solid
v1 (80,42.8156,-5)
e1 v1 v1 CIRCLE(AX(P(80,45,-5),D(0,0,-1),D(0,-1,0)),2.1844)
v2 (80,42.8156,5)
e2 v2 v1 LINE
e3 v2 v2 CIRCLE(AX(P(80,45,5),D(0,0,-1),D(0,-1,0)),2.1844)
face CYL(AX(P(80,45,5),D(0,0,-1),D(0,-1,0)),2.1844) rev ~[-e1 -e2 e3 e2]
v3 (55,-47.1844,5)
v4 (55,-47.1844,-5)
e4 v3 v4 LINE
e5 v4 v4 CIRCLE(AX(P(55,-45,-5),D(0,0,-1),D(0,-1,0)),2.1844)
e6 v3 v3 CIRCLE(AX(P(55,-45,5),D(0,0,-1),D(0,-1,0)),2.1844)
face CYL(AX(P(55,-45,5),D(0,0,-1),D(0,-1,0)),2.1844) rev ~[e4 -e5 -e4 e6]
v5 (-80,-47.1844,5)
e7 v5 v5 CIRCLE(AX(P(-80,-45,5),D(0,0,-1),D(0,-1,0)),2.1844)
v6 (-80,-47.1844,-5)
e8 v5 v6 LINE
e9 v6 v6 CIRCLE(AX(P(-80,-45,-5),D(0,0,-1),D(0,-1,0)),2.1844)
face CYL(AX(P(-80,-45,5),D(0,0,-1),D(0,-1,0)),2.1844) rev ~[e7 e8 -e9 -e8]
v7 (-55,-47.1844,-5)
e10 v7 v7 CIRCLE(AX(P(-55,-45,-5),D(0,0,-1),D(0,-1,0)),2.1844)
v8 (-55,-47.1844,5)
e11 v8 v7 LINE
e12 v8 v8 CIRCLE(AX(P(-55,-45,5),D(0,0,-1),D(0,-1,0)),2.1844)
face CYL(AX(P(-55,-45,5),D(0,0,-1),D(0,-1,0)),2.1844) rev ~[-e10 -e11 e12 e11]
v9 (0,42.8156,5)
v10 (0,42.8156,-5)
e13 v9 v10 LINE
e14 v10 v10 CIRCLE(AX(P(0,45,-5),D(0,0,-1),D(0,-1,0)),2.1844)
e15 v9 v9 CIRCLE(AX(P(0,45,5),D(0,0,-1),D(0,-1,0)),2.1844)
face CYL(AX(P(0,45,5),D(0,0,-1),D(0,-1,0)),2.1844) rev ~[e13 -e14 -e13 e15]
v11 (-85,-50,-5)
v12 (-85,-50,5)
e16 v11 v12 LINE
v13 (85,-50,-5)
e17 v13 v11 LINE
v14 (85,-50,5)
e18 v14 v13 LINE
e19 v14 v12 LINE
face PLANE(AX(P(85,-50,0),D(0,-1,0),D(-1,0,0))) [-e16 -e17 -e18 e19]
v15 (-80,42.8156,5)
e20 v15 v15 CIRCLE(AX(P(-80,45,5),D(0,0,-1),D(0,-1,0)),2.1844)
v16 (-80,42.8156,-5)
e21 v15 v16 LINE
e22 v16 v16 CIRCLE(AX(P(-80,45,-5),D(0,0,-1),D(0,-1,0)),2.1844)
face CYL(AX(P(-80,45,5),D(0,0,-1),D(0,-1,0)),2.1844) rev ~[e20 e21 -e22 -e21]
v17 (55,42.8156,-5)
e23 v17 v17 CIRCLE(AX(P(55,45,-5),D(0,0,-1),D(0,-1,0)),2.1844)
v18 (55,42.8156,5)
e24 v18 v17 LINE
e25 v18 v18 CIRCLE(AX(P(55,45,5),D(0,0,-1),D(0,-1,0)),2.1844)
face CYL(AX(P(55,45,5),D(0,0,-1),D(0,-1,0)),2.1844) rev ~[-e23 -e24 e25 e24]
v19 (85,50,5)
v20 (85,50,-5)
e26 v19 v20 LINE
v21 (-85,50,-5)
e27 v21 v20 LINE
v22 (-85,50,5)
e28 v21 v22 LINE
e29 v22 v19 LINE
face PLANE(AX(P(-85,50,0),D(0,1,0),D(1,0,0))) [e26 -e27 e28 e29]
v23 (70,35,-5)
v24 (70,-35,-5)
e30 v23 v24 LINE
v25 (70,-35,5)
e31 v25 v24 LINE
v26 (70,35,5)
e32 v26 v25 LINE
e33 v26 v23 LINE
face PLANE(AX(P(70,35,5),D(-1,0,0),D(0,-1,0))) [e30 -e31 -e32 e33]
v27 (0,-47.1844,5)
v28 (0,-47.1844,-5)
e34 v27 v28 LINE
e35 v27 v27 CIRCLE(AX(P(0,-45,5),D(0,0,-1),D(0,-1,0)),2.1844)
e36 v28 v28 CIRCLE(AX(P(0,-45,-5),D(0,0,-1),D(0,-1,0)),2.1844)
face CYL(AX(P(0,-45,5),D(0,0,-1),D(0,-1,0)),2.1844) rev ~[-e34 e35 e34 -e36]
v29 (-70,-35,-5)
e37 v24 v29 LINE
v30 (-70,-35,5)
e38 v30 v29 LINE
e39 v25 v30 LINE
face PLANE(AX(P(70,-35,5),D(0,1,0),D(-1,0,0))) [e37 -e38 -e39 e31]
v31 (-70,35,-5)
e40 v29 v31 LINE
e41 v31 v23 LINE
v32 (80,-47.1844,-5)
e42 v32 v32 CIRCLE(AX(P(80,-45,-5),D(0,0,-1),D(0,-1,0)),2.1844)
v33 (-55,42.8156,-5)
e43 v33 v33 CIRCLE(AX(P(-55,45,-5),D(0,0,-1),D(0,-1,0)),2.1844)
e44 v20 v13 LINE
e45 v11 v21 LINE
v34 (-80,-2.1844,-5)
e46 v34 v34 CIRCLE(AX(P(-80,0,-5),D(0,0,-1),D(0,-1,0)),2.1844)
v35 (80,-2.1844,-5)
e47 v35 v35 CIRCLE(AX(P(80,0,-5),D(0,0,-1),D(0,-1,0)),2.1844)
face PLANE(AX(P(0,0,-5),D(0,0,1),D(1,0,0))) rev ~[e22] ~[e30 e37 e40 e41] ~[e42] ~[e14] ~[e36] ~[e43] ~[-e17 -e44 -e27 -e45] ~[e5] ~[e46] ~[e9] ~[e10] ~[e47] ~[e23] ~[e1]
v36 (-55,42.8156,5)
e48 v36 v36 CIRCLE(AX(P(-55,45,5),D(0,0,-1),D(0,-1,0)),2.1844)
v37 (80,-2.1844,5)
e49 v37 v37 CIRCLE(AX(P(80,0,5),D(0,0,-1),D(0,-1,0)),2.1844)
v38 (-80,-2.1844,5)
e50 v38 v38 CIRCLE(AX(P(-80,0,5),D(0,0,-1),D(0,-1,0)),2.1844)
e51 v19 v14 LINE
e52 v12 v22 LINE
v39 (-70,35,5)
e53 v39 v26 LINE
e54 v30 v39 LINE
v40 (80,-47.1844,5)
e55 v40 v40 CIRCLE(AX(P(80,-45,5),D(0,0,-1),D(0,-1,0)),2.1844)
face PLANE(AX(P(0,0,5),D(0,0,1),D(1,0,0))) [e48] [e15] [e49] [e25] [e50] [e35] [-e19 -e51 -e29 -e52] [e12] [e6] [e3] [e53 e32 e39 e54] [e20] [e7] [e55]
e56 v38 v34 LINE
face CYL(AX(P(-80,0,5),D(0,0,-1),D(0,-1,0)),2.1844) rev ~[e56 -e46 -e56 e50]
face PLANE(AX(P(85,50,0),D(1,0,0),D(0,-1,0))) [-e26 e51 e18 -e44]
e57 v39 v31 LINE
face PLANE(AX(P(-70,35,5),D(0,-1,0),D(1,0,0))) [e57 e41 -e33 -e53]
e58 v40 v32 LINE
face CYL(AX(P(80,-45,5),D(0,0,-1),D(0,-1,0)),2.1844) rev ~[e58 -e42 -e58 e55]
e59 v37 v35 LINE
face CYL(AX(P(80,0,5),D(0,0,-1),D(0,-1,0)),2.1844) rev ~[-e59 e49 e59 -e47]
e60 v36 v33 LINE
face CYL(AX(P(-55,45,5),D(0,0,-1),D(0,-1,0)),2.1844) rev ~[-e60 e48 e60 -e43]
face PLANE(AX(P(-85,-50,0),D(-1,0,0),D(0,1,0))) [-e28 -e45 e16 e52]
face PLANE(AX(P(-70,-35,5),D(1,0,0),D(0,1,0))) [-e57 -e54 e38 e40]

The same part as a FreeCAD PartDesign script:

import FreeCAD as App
import Part
import Sketcher

V = App.Vector
Q = App.Units.Quantity

doc = App.newDocument("Part")
body = doc.addObject("PartDesign::Body", "Body")

sketch1 = body.newObject("Sketcher::SketchObject", "Sketch")
sketch1.AttachmentSupport = (doc.getObject("XY_Plane"), [""])
sketch1.MapMode = "FlatFace"
sketch1.addGeometry(Part.LineSegment(V(85, 50, 0), V(-85, 50, 0)), False)
sketch1.addGeometry(Part.LineSegment(V(-85, 50, 0), V(-85, -50, 0)), False)
sketch1.addGeometry(Part.LineSegment(V(-85, -50, 0), V(85, -50, 0)), False)
sketch1.addGeometry(Part.LineSegment(V(85, -50, 0), V(85, 50, 0)), False)
sketch1.addConstraint(Sketcher.Constraint("Coincident", 0, 2, 1, 1))
sketch1.addConstraint(Sketcher.Constraint("Coincident", 1, 2, 2, 1))
sketch1.addConstraint(Sketcher.Constraint("Coincident", 2, 2, 3, 1))
sketch1.addConstraint(Sketcher.Constraint("Coincident", 3, 2, 0, 1))
sketch1.addConstraint(Sketcher.Constraint("Horizontal", 0))
sketch1.addConstraint(Sketcher.Constraint("Vertical", 1))
sketch1.addConstraint(Sketcher.Constraint("Horizontal", 2))
sketch1.addConstraint(Sketcher.Constraint("Vertical", 3))
sketch1.addConstraint(Sketcher.Constraint("Symmetric", 0, 2, 2, 2, -1, 1))
sketch1.addConstraint(Sketcher.Constraint("DistanceX", 0, 2, 0, 1, Q("170 mm")))
sketch1.addConstraint(Sketcher.Constraint("DistanceY", 1, 2, 1, 1, Q("100 mm")))
pad1 = body.newObject("PartDesign::Pad", "Pad")
pad1.Profile = sketch1
pad1.Length = 10
pad1.Midplane = True

sketch2 = body.newObject("Sketcher::SketchObject", "Sketch001")
sketch2.AttachmentSupport = (doc.getObject("XY_Plane"), [""])
sketch2.MapMode = "FlatFace"
sketch2.AttachmentOffset = App.Placement(V(0, 0, 5), App.Rotation())
sketch2.addGeometry(Part.LineSegment(V(70, 35, 0), V(-70, 35, 0)), False)
sketch2.addGeometry(Part.LineSegment(V(-70, 35, 0), V(-70, -35, 0)), False)
sketch2.addGeometry(Part.LineSegment(V(-70, -35, 0), V(70, -35, 0)), False)
sketch2.addGeometry(Part.LineSegment(V(70, -35, 0), V(70, 35, 0)), False)
sketch2.addConstraint(Sketcher.Constraint("Coincident", 0, 2, 1, 1))
sketch2.addConstraint(Sketcher.Constraint("Coincident", 1, 2, 2, 1))
sketch2.addConstraint(Sketcher.Constraint("Coincident", 2, 2, 3, 1))
sketch2.addConstraint(Sketcher.Constraint("Coincident", 3, 2, 0, 1))
sketch2.addConstraint(Sketcher.Constraint("Horizontal", 0))
sketch2.addConstraint(Sketcher.Constraint("Vertical", 1))
sketch2.addConstraint(Sketcher.Constraint("Horizontal", 2))
sketch2.addConstraint(Sketcher.Constraint("Vertical", 3))
sketch2.addConstraint(Sketcher.Constraint("Symmetric", 0, 2, 2, 2, -1, 1))
sketch2.addConstraint(Sketcher.Constraint("DistanceX", 0, 2, 0, 1, Q("140 mm")))
sketch2.addConstraint(Sketcher.Constraint("DistanceY", 1, 2, 1, 1, Q("70 mm")))
pocket1 = body.newObject("PartDesign::Pocket", "Pocket")
pocket1.Profile = sketch2
pocket1.Length = 10

sketch3 = body.newObject("Sketcher::SketchObject", "Sketch002")
sketch3.AttachmentSupport = (doc.getObject("XY_Plane"), [""])
sketch3.MapMode = "FlatFace"
sketch3.AttachmentOffset = App.Placement(V(0, 0, 5), App.Rotation())
sketch3.addGeometry(Part.Circle(V(-80, 0, 0), V(0, 0, 1), 2.1844), False)
sketch3.addGeometry(Part.Circle(V(-80, -45, 0), V(0, 0, 1), 2.1844), False)
sketch3.addGeometry(Part.Circle(V(0, -45, 0), V(0, 0, 1), 2.1844), False)
sketch3.addGeometry(Part.Circle(V(-55, -45, 0), V(0, 0, 1), 2.1844), False)
sketch3.addGeometry(Part.Circle(V(55, -45, 0), V(0, 0, 1), 2.1844), False)
sketch3.addGeometry(Part.Circle(V(80, -45, 0), V(0, 0, 1), 2.1844), False)
sketch3.addGeometry(Part.Circle(V(80, 0, 0), V(0, 0, 1), 2.1844), False)
sketch3.addGeometry(Part.Circle(V(80, 45, 0), V(0, 0, 1), 2.1844), False)
sketch3.addGeometry(Part.Circle(V(55, 45, 0), V(0, 0, 1), 2.1844), False)
sketch3.addGeometry(Part.Circle(V(0, 45, 0), V(0, 0, 1), 2.1844), False)
sketch3.addGeometry(Part.Circle(V(-55, 45, 0), V(0, 0, 1), 2.1844), False)
sketch3.addGeometry(Part.Circle(V(-80, 45, 0), V(0, 0, 1), 2.1844), False)
sketch3.addConstraint(Sketcher.Constraint("Equal", 0, 1))
sketch3.addConstraint(Sketcher.Constraint("Equal", 1, 2))
sketch3.addConstraint(Sketcher.Constraint("Equal", 2, 3))
sketch3.addConstraint(Sketcher.Constraint("Equal", 3, 4))
sketch3.addConstraint(Sketcher.Constraint("Equal", 4, 5))
sketch3.addConstraint(Sketcher.Constraint("Equal", 5, 6))
sketch3.addConstraint(Sketcher.Constraint("Equal", 6, 7))
sketch3.addConstraint(Sketcher.Constraint("Equal", 7, 8))
sketch3.addConstraint(Sketcher.Constraint("Equal", 8, 9))
sketch3.addConstraint(Sketcher.Constraint("Equal", 9, 10))
sketch3.addConstraint(Sketcher.Constraint("Equal", 10, 11))
sketch3.addConstraint(Sketcher.Constraint("Symmetric", 0, 3, 6, 3, -1, 1))
sketch3.addConstraint(Sketcher.Constraint("Symmetric", 1, 3, 7, 3, -1, 1))
sketch3.addConstraint(Sketcher.Constraint("Symmetric", 3, 3, 8, 3, -1, 1))
sketch3.addConstraint(Sketcher.Constraint("Symmetric", 2, 3, 9, 3, -1, 1))
sketch3.addConstraint(Sketcher.Constraint("Symmetric", 4, 3, 10, 3, -1, 1))
sketch3.addConstraint(Sketcher.Constraint("Symmetric", 5, 3, 11, 3, -1, 1))
sketch3.addConstraint(Sketcher.Constraint("Symmetric", 3, 3, 4, 3, -2))
sketch3.addConstraint(Sketcher.Constraint("Symmetric", 1, 3, 5, 3, -2))
sketch3.addConstraint(Sketcher.Constraint("PointOnObject", 0, 3, -1))
sketch3.addConstraint(Sketcher.Constraint("PointOnObject", 2, 3, -2))
sketch3.addConstraint(Sketcher.Constraint("Horizontal", 1, 3, 2, 3))
sketch3.addConstraint(Sketcher.Constraint("Horizontal", 2, 3, 3, 3))
sketch3.addConstraint(Sketcher.Constraint("Vertical", 0, 3, 1, 3))
sketch3.addConstraint(Sketcher.Constraint("DistanceX", 0, 3, -1, 1, Q("80 mm")))
sketch3.addConstraint(Sketcher.Constraint("DistanceY", 1, 3, -1, 1, Q("45 mm")))
sketch3.addConstraint(Sketcher.Constraint("DistanceX", 3, 3, -1, 1, Q("55 mm")))
sketch3.addConstraint(Sketcher.Constraint("Diameter", 0, Q("4.3688 mm")))
doc.recompute()
hole = body.newObject("PartDesign::Hole", "Hole")
hole.Profile = sketch3
hole.ThreadType = "None"
hole.Diameter = 4.3688
hole.DepthType = "ThroughAll"

doc.recompute()
